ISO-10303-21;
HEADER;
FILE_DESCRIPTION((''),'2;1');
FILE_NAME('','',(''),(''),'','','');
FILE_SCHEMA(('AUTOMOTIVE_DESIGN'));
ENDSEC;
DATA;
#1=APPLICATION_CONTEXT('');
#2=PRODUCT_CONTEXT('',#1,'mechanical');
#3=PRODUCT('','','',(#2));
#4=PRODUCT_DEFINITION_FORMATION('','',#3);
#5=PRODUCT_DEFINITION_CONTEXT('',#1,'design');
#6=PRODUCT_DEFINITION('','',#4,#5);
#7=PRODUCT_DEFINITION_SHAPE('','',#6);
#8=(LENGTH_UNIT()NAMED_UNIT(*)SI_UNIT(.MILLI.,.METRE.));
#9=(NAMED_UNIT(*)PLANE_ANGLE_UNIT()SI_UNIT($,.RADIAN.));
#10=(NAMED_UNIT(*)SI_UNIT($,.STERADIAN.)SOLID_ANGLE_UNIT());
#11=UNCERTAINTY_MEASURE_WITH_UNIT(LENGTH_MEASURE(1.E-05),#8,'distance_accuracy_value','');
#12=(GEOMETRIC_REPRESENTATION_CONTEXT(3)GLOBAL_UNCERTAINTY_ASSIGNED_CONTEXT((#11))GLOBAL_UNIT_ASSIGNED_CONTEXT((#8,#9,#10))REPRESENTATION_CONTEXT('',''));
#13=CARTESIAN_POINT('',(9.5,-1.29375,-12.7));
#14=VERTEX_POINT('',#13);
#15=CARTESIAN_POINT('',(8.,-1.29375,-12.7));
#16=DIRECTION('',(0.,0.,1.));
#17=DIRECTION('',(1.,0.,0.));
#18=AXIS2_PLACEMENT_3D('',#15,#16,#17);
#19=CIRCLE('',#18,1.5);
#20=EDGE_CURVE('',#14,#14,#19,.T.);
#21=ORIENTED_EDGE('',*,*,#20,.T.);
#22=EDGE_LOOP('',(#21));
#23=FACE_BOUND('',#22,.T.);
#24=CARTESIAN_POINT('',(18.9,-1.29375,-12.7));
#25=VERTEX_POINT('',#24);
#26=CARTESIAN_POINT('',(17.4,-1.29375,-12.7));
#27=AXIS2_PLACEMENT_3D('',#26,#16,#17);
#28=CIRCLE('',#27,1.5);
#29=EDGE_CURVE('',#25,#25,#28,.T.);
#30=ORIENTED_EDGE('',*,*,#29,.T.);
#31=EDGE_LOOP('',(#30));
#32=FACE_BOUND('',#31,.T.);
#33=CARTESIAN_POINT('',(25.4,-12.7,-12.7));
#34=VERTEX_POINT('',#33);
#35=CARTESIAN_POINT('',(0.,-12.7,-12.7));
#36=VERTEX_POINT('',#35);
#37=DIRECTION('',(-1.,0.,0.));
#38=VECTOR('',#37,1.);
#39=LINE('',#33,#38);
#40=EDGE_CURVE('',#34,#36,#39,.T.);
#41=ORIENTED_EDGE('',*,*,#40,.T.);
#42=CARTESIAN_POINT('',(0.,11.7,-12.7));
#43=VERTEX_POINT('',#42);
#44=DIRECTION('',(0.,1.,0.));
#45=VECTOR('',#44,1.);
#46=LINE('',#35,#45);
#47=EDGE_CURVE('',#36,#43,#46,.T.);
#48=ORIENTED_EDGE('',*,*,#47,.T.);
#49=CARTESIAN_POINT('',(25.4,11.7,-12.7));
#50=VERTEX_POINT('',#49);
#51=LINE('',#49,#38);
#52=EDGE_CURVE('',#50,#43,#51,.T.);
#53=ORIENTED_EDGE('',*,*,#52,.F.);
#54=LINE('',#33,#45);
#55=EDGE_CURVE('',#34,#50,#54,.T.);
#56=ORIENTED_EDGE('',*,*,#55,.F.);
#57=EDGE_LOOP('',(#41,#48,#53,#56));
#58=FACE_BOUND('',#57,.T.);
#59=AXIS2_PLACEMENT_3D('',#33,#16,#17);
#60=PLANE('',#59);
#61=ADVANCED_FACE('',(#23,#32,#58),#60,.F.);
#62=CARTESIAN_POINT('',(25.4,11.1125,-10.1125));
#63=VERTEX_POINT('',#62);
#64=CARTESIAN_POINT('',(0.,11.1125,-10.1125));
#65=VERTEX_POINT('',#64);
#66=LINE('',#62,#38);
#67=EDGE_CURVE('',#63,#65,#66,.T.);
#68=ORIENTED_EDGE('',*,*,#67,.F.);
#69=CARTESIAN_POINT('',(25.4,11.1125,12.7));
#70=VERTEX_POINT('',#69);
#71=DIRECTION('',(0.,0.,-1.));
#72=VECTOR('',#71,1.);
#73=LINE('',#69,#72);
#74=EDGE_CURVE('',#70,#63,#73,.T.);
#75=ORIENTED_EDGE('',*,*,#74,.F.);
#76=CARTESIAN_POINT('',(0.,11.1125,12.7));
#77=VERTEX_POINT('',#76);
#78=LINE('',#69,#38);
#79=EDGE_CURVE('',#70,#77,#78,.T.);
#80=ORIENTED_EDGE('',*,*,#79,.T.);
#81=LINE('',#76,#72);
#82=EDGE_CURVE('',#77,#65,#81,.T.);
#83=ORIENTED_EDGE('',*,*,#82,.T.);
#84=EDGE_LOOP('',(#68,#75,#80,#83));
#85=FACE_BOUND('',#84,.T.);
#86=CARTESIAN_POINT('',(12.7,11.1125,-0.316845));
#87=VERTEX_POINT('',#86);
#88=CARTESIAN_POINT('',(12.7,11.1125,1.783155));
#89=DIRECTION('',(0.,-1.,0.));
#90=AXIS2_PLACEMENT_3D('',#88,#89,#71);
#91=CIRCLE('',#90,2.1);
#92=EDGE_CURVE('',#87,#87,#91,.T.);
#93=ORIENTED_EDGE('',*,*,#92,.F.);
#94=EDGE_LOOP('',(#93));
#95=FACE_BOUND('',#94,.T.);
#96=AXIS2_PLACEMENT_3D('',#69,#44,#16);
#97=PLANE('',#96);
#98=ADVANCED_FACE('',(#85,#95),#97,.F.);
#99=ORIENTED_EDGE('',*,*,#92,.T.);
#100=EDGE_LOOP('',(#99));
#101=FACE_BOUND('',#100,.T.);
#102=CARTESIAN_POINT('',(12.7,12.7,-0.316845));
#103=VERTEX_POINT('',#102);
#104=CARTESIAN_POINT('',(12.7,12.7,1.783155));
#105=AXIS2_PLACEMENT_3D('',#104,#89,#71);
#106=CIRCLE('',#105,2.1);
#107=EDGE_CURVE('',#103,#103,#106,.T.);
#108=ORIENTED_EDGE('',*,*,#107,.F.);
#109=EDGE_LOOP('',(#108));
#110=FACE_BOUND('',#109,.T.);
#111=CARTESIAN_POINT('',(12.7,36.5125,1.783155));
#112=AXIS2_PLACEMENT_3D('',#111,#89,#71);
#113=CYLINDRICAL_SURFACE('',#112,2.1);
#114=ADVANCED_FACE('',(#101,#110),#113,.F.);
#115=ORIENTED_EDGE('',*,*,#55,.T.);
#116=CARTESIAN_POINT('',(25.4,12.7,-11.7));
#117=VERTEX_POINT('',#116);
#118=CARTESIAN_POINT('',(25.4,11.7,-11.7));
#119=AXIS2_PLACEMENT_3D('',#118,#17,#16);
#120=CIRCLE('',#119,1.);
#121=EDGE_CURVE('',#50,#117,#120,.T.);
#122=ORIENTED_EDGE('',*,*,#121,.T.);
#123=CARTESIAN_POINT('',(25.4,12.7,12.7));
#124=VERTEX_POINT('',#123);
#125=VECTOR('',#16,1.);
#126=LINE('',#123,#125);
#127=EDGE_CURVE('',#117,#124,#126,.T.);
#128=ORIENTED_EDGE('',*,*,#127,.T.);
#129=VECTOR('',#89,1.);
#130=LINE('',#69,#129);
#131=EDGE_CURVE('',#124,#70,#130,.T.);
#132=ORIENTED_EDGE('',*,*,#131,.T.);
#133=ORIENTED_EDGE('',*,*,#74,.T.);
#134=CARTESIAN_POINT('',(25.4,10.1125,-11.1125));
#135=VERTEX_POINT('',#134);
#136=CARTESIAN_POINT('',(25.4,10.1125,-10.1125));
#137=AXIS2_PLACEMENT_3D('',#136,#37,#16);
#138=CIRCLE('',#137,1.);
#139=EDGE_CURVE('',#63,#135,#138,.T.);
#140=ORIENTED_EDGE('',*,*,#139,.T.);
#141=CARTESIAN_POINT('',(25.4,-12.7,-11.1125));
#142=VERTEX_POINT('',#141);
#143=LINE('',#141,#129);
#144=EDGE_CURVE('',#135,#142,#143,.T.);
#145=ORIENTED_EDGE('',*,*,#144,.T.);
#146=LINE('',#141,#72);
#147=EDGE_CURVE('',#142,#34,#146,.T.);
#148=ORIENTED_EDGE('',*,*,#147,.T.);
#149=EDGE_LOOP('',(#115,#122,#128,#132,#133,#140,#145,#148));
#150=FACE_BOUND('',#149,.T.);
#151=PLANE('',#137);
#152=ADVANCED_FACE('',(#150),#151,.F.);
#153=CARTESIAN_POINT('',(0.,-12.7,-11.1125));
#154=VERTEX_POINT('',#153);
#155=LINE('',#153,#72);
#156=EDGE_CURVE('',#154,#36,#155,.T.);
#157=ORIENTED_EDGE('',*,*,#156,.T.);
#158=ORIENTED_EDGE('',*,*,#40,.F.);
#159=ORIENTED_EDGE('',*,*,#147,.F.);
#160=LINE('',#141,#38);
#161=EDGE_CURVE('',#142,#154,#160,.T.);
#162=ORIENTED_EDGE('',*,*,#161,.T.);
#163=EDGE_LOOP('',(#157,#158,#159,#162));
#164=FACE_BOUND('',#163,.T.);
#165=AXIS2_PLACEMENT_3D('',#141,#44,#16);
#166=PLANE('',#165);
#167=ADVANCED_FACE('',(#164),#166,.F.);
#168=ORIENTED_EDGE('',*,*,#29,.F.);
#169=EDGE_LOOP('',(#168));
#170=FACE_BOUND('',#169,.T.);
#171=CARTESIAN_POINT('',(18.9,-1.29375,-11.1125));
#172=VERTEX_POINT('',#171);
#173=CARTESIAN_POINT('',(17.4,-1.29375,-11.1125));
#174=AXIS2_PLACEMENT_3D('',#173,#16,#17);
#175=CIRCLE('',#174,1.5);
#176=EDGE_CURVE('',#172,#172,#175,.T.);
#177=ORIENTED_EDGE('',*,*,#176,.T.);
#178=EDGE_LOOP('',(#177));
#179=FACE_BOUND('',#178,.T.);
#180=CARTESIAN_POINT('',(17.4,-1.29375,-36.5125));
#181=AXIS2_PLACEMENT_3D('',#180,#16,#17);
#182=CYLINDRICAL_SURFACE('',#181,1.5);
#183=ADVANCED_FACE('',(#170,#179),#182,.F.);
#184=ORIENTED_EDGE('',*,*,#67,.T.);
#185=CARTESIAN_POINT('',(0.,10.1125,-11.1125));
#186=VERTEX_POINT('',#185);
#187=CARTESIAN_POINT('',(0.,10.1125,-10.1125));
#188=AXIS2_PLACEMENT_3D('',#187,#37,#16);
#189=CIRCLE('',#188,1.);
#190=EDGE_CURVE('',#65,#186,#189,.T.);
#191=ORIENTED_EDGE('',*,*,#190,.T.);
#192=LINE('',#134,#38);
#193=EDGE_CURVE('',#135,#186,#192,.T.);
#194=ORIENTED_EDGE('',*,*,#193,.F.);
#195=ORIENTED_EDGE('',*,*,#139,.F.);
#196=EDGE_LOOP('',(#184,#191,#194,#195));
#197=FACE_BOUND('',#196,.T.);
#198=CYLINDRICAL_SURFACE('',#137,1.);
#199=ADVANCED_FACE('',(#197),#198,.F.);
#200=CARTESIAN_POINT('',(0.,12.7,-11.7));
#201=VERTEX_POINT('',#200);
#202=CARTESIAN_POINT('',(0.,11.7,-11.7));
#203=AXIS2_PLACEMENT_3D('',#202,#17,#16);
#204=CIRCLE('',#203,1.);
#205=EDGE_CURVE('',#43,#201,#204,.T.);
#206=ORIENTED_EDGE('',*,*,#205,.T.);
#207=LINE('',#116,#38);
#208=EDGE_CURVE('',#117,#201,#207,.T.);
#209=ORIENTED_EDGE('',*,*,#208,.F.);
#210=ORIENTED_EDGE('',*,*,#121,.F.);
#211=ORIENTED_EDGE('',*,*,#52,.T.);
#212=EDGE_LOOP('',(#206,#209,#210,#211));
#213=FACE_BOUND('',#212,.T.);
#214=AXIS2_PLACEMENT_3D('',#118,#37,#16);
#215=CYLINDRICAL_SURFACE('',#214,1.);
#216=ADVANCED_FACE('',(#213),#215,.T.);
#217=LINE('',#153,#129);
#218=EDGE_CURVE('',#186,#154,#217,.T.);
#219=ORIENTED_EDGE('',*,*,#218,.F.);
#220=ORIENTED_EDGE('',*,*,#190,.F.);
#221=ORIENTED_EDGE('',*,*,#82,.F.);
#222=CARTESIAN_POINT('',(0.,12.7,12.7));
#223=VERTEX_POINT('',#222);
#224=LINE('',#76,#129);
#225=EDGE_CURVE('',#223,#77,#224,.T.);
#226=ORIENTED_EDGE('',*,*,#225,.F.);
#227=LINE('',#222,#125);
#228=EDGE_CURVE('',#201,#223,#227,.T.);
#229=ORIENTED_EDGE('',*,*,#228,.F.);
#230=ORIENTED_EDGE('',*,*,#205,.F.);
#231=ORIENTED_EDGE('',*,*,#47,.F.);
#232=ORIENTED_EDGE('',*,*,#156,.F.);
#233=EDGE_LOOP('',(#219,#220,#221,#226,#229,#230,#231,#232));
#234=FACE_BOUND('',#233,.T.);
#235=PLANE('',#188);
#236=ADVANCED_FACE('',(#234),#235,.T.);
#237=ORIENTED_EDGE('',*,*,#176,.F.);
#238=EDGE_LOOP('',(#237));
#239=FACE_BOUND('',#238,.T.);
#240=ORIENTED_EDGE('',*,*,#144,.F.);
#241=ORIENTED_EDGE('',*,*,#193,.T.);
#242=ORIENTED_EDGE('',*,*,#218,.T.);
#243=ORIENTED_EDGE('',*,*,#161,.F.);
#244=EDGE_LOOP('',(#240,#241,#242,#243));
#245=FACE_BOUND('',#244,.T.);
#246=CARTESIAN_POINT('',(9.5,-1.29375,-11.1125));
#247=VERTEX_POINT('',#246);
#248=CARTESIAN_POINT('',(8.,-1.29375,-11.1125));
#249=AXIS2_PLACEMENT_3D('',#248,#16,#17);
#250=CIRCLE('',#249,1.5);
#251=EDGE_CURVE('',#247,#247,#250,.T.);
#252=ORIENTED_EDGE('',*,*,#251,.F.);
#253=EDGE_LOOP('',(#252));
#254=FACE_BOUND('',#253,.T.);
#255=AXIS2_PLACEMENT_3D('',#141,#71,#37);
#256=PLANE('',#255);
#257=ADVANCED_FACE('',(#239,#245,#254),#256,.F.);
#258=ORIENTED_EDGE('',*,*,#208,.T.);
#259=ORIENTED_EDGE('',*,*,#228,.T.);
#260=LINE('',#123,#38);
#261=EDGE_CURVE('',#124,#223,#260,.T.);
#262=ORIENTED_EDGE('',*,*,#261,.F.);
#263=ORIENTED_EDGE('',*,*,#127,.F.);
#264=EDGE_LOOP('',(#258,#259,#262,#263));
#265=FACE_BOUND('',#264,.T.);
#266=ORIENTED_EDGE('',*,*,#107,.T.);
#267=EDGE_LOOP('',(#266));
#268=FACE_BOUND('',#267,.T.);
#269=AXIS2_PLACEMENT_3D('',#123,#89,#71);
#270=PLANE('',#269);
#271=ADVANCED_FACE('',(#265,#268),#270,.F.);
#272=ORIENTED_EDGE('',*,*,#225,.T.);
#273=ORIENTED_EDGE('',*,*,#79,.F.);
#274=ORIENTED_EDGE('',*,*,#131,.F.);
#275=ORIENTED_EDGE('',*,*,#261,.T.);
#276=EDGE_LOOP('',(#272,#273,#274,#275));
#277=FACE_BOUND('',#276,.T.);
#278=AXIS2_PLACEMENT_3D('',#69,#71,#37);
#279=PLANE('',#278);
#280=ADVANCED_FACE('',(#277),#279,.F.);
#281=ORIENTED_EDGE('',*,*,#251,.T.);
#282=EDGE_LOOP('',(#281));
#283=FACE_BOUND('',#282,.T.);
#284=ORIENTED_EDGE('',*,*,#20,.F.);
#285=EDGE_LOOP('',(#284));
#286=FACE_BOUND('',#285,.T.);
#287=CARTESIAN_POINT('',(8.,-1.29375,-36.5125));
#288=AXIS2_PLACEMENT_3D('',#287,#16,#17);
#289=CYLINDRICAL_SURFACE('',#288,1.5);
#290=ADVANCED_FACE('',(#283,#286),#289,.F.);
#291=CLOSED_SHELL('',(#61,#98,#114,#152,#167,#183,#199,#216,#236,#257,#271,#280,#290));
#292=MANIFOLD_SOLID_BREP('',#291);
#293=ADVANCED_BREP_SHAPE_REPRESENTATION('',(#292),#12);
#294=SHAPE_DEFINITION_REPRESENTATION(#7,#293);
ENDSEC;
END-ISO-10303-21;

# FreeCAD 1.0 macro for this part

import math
import FreeCAD as App
import Part
import Sketcher
from FreeCAD import Vector
Q = App.Units.Quantity

doc = App.newDocument("Part")
body = doc.addObject("PartDesign::Body", "Body")

# Sketch on YZ plane
sketch1 = body.newObject("Sketcher::SketchObject", "Sketch")
sketch1.AttachmentSupport = (doc.getObject("YZ_Plane"), [""])
sketch1.MapMode = "FlatFace"
sketch1.addGeometry(Part.LineSegment(Vector(-12.7, -11.1125, 0), Vector(-12.7, -12.7, 0)), False)
sketch1.addGeometry(Part.LineSegment(Vector(-12.7, -12.7, 0), Vector(11.7, -12.7, 0)), False)
sketch1.addGeometry(Part.ArcOfCircle(Part.Circle(Vector(11.7, -11.7, 0), Vector(0, 0, 1), 1), math.radians(-90), math.radians(0)), False)
sketch1.addGeometry(Part.LineSegment(Vector(12.7, -11.7, 0), Vector(12.7, 12.7, 0)), False)
sketch1.addGeometry(Part.LineSegment(Vector(12.7, 12.7, 0), Vector(11.1125, 12.7, 0)), False)
sketch1.addGeometry(Part.LineSegment(Vector(11.1125, 12.7, 0), Vector(11.1125, -10.1125, 0)), False)
sketch1.addGeometry(Part.ArcOfCircle(Part.Circle(Vector(10.1125, -10.1125, 0), Vector(0, 0, 1), 1), math.radians(-90), math.radians(0)), False)
sketch1.addGeometry(Part.LineSegment(Vector(10.1125, -11.1125, 0), Vector(-12.7, -11.1125, 0)), False)
sketch1.addConstraint(Sketcher.Constraint("Coincident", 0, 2, 1, 1))
sketch1.addConstraint(Sketcher.Constraint("Tangent", 1, 2, 2, 1))
sketch1.addConstraint(Sketcher.Constraint("Tangent", 2, 2, 3, 1))
sketch1.addConstraint(Sketcher.Constraint("Coincident", 3, 2, 4, 1))
sketch1.addConstraint(Sketcher.Constraint("Coincident", 4, 2, 5, 1))
sketch1.addConstraint(Sketcher.Constraint("Tangent", 5, 2, 6, 2))
sketch1.addConstraint(Sketcher.Constraint("Tangent", 6, 1, 7, 1))
sketch1.addConstraint(Sketcher.Constraint("Coincident", 7, 2, 0, 1))
sketch1.addConstraint(Sketcher.Constraint("Vertical", 0))
sketch1.addConstraint(Sketcher.Constraint("Horizontal", 1))
sketch1.addConstraint(Sketcher.Constraint("Vertical", 3))
sketch1.addConstraint(Sketcher.Constraint("Horizontal", 4))
sketch1.addConstraint(Sketcher.Constraint("Vertical", 5))
sketch1.addConstraint(Sketcher.Constraint("Horizontal", 7))
sketch1.addConstraint(Sketcher.Constraint("Equal", 2, 6))
sketch1.addConstraint(Sketcher.Constraint("Symmetric", 0, 2, 3, 2, -1, 1))
sketch1.addConstraint(Sketcher.Constraint("Equal", 4, 0))
sketch1.addConstraint(Sketcher.Constraint("Equal", 1, 3))
sketch1.addConstraint(Sketcher.Constraint("Radius", 2, Q("1 mm")))
sketch1.addConstraint(Sketcher.Constraint("DistanceX", 1, 1, 1, 2, Q("24.4 mm")))
sketch1.addConstraint(Sketcher.Constraint("DistanceX", 4, 2, 4, 1, Q("1.5875 mm")))
pad1 = body.newObject("PartDesign::Pad", "Pad")
pad1.Profile = sketch1
pad1.Length = 25.4

# Sketch on XY plane
sketch2 = body.newObject("Sketcher::SketchObject", "Sketch001")
sketch2.AttachmentSupport = (doc.getObject("XY_Plane"), [""])
sketch2.MapMode = "FlatFace"
sketch2.AttachmentOffset = App.Placement(Vector(0, 0, -11.1125), App.Rotation())
sketch2.addGeometry(Part.Circle(Vector(8, -1.29375, 0), Vector(0, 0, 1), 1.5), False)
sketch2.addGeometry(Part.Circle(Vector(17.4, -1.29375, 0), Vector(0, 0, 1), 1.5), False)
sketch2.addConstraint(Sketcher.Constraint("Equal", 0, 1))
sketch2.addConstraint(Sketcher.Constraint("Horizontal", 0, 3, 1, 3))
sketch2.addConstraint(Sketcher.Constraint("Diameter", 0, Q("3 mm")))
sketch2.addConstraint(Sketcher.Constraint("DistanceX", -1, 1, 0, 3, Q("8 mm")))
sketch2.addConstraint(Sketcher.Constraint("DistanceX", -1, 1, 1, 3, Q("17.4 mm")))
sketch2.addConstraint(Sketcher.Constraint("DistanceY", 0, 3, -1, 1, Q("1.29375 mm")))
pocket1 = body.newObject("PartDesign::Pocket", "Pocket")
pocket1.Profile = sketch2
pocket1.Length = 25.4

# Sketch on XZ plane
sketch3 = body.newObject("Sketcher::SketchObject", "Sketch002")
sketch3.AttachmentSupport = (doc.getObject("XZ_Plane"), [""])
sketch3.MapMode = "FlatFace"
sketch3.AttachmentOffset = App.Placement(Vector(0, 0, -11.1125), App.Rotation())
sketch3.addGeometry(Part.Circle(Vector(12.7, 1.783155, 0), Vector(0, 0, 1), 2.1), False)
sketch3.addConstraint(Sketcher.Constraint("Diameter", 0, Q("4.2 mm")))
sketch3.addConstraint(Sketcher.Constraint("DistanceX", -1, 1, 0, 3, Q("12.7 mm")))
sketch3.addConstraint(Sketcher.Constraint("DistanceY", -1, 1, 0, 3, Q("1.783155 mm")))
pocket2 = body.newObject("PartDesign::Pocket", "Pocket001")
pocket2.Profile = sketch3
pocket2.Length = 25.4

doc.recompute()
